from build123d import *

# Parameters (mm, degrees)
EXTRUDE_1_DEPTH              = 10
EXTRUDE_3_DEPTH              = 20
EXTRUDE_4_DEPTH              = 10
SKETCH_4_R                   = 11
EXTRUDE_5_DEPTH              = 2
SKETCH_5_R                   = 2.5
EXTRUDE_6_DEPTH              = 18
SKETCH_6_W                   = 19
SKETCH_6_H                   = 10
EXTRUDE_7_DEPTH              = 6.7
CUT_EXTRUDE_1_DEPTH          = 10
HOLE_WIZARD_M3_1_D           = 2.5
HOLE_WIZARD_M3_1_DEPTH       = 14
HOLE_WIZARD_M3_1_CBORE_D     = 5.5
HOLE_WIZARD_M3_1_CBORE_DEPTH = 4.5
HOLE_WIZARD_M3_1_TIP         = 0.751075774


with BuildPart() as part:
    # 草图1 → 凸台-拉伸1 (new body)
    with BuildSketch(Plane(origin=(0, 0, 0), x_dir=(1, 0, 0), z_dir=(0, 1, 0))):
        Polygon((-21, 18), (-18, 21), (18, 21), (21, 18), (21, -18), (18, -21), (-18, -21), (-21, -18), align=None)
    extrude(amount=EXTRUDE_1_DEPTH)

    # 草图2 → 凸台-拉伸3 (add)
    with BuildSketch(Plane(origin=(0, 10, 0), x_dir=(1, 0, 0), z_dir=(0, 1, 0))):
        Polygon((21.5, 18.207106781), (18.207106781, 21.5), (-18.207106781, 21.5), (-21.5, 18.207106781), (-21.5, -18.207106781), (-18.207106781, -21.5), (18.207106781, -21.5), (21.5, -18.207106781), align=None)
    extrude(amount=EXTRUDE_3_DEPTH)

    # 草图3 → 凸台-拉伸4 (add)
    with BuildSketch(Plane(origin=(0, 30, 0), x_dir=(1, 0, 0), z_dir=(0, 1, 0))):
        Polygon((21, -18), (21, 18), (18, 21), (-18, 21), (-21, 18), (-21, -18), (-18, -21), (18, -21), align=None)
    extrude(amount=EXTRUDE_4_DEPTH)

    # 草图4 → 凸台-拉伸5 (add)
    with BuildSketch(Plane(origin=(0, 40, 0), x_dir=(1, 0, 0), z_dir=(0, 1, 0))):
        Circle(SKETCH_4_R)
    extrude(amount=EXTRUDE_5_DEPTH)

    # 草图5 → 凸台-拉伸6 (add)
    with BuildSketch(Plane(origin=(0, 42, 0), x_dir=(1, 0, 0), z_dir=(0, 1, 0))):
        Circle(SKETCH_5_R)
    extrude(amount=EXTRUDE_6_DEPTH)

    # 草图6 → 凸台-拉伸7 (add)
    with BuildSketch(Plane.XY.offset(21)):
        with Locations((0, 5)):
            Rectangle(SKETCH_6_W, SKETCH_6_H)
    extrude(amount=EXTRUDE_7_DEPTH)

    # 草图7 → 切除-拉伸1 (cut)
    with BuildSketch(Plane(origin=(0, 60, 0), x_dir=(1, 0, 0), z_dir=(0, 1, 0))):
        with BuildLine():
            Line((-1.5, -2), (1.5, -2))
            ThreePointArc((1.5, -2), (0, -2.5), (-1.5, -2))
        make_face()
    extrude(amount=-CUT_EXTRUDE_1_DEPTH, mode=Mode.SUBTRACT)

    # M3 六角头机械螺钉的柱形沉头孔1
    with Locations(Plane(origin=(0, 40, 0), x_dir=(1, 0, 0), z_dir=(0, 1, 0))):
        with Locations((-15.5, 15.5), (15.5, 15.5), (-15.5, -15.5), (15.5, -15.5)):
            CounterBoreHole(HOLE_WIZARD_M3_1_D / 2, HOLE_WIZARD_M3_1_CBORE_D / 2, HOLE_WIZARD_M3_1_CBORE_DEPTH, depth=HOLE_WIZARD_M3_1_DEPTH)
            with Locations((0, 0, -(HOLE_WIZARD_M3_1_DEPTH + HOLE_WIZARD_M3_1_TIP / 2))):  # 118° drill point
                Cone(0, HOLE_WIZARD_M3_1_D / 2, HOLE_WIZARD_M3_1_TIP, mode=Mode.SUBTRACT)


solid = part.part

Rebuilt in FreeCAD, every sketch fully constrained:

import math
import FreeCAD as App
import Part
import Sketcher
from FreeCAD import Vector

doc = App.newDocument("Part")
params = doc.addObject("Spreadsheet::Sheet", "Params")
for row, (alias, value) in enumerate([
    ("sketch1_width", "36 mm"),
    ("pad1_length", "10 mm"),
    ("pad2_length", "20 mm"),
    ("sketch3_width", "36 mm"),
    ("pad3_length", "10 mm"),
    ("sketch4_diameter", "22 mm"),
    ("pad4_length", "2 mm"),
    ("sketch5_diameter", "5 mm"),
    ("pad5_length", "18 mm"),
    ("sketch6_width", "19 mm"),
    ("sketch6_height", "10 mm"),
    ("pad6_length", "6.7 mm"),
    ("sketch7_radius", "2.5 mm"),
    ("sketch7_width", "3 mm"),
    ("pocket1_length", "10 mm"),
    ("sketch8_diameter", "2.5 mm"),
    ("hole_diameter", "2.5 mm"),
    ("hole_depth", "14 mm"),
    ("hole_cbore_diameter", "5.5 mm"),
    ("hole_cbore_depth", "4.5 mm"),
], start=1):
    params.set(f"A{row}", alias)
    params.set(f"B{row}", "=" + value)
    params.setAlias(f"B{row}", alias)

body = doc.addObject("PartDesign::Body", "Body")

sketch1 = doc.addObject("Sketcher::SketchObject", "Sketch")
body.addObject(sketch1)
sketch1.AttachmentSupport = (doc.XZ_Plane, [""])
sketch1.MapMode = "FlatFace"
sketch1.addGeometry(Part.LineSegment(Vector(-18, -21, 0), Vector(-21, -18, 0)), False)
sketch1.addGeometry(Part.LineSegment(Vector(-21, -18, 0), Vector(-21, 18, 0)), False)
sketch1.addGeometry(Part.LineSegment(Vector(-21, 18, 0), Vector(-18, 21, 0)), False)
sketch1.addGeometry(Part.LineSegment(Vector(-18, 21, 0), Vector(18, 21, 0)), False)
sketch1.addGeometry(Part.LineSegment(Vector(18, 21, 0), Vector(21, 18, 0)), False)
sketch1.addGeometry(Part.LineSegment(Vector(21, 18, 0), Vector(21, -18, 0)), False)
sketch1.addGeometry(Part.LineSegment(Vector(21, -18, 0), Vector(18, -21, 0)), False)
sketch1.addGeometry(Part.LineSegment(Vector(18, -21, 0), Vector(-18, -21, 0)), False)
sketch1.addConstraint(Sketcher.Constraint("Coincident", 0, 2, 1, 1))
sketch1.addConstraint(Sketcher.Constraint("Coincident", 1, 2, 2, 1))
sketch1.addConstraint(Sketcher.Constraint("Coincident", 2, 2, 3, 1))
sketch1.addConstraint(Sketcher.Constraint("Coincident", 3, 2, 4, 1))
sketch1.addConstraint(Sketcher.Constraint("Coincident", 4, 2, 5, 1))
sketch1.addConstraint(Sketcher.Constraint("Coincident", 5, 2, 6, 1))
sketch1.addConstraint(Sketcher.Constraint("Coincident", 6, 2, 7, 1))
sketch1.addConstraint(Sketcher.Constraint("Coincident", 7, 2, 0, 1))
sketch1.addConstraint(Sketcher.Constraint("Vertical", 1))
sketch1.addConstraint(Sketcher.Constraint("Horizontal", 3))
sketch1.addConstraint(Sketcher.Constraint("Vertical", 5))
sketch1.addConstraint(Sketcher.Constraint("Horizontal", 7))
sketch1.addConstraint(Sketcher.Constraint("Symmetric", 0, 2, 4, 2, -1, 1))
sketch1.addConstraint(Sketcher.Constraint("Symmetric", 2, 2, 6, 2, -1, 1))
sketch1.addConstraint(Sketcher.Constraint("Perpendicular", 0, 2))
sketch1.addConstraint(Sketcher.Constraint("Perpendicular", 2, 4))
sketch1.addConstraint(Sketcher.Constraint("Perpendicular", 4, 6))
sketch1.addConstraint(Sketcher.Constraint("Horizontal", 1, 2, 4, 2))
sketch1.addConstraint(Sketcher.Constraint("Vertical", 3, 2, 6, 2))
sketch1.addConstraint(Sketcher.Constraint("Equal", 7, 1))
sketch1.addConstraint(Sketcher.Constraint("DistanceX", 3, 1, 3, 2, 36.0))
sketch1.addConstraint(Sketcher.Constraint("DistanceX", 0, 2, -1, 1, 21.0))
sketch1.setExpression("Constraints[20]", "Params.sketch1_width")
pad1 = doc.addObject("PartDesign::Pad", "Pad")
body.addObject(pad1)
pad1.Profile = sketch1
pad1.setExpression("Length", "Params.pad1_length")
pad1.Reversed = True

sketch2 = doc.addObject("Sketcher::SketchObject", "Sketch001")
body.addObject(sketch2)
sketch2.AttachmentSupport = (doc.XZ_Plane, [""])
sketch2.MapMode = "FlatFace"
sketch2.AttachmentOffset = App.Placement(Vector(0, 0, -10), App.Rotation())
sketch2.addGeometry(Part.LineSegment(Vector(21.5, -18.2, 0), Vector(18.2, -21.5, 0)), False)
sketch2.addGeometry(Part.LineSegment(Vector(18.2, -21.5, 0), Vector(-18.2, -21.5, 0)), False)
sketch2.addGeometry(Part.LineSegment(Vector(-18.2, -21.5, 0), Vector(-21.5, -18.2, 0)), False)
sketch2.addGeometry(Part.LineSegment(Vector(-21.5, -18.2, 0), Vector(-21.5, 18.2, 0)), False)
sketch2.addGeometry(Part.LineSegment(Vector(-21.5, 18.2, 0), Vector(-18.2, 21.5, 0)), False)
sketch2.addGeometry(Part.LineSegment(Vector(-18.2, 21.5, 0), Vector(18.2, 21.5, 0)), False)
sketch2.addGeometry(Part.LineSegment(Vector(18.2, 21.5, 0), Vector(21.5, 18.2, 0)), False)
sketch2.addGeometry(Part.LineSegment(Vector(21.5, 18.2, 0), Vector(21.5, -18.2, 0)), False)
sketch2.addConstraint(Sketcher.Constraint("Coincident", 0, 2, 1, 1))
sketch2.addConstraint(Sketcher.Constraint("Coincident", 1, 2, 2, 1))
sketch2.addConstraint(Sketcher.Constraint("Coincident", 2, 2, 3, 1))
sketch2.addConstraint(Sketcher.Constraint("Coincident", 3, 2, 4, 1))
sketch2.addConstraint(Sketcher.Constraint("Coincident", 4, 2, 5, 1))
sketch2.addConstraint(Sketcher.Constraint("Coincident", 5, 2, 6, 1))
sketch2.addConstraint(Sketcher.Constraint("Coincident", 6, 2, 7, 1))
sketch2.addConstraint(Sketcher.Constraint("Coincident", 7, 2, 0, 1))
sketch2.addConstraint(Sketcher.Constraint("Horizontal", 1))
sketch2.addConstraint(Sketcher.Constraint("Vertical", 3))
sketch2.addConstraint(Sketcher.Constraint("Horizontal", 5))
sketch2.addConstraint(Sketcher.Constraint("Vertical", 7))
sketch2.addConstraint(Sketcher.Constraint("Symmetric", 0, 2, 4, 2, -1, 1))
sketch2.addConstraint(Sketcher.Constraint("Symmetric", 2, 2, 6, 2, -1, 1))
sketch2.addConstraint(Sketcher.Constraint("Perpendicular", 0, 2))
sketch2.addConstraint(Sketcher.Constraint("Perpendicular", 2, 4))
sketch2.addConstraint(Sketcher.Constraint("Perpendicular", 4, 6))
sketch2.addConstraint(Sketcher.Constraint("Horizontal", 3, 2, 6, 2))
sketch2.addConstraint(Sketcher.Constraint("Vertical", 1, 2, 4, 2))
sketch2.addConstraint(Sketcher.Constraint("Equal", 5, 3))
sketch2.addConstraint(Sketcher.Constraint("DistanceY", 1, 2, 4, 2, 43.0))
sketch2.addConstraint(Sketcher.Constraint("DistanceX", 1, 2, 1, 1, 36.414214))
pad2 = doc.addObject("PartDesign::Pad", "Pad001")
body.addObject(pad2)
pad2.Profile = sketch2
pad2.setExpression("Length", "Params.pad2_length")
pad2.Reversed = True

sketch3 = doc.addObject("Sketcher::SketchObject", "Sketch002")
body.addObject(sketch3)
sketch3.AttachmentSupport = (doc.XZ_Plane, [""])
sketch3.MapMode = "FlatFace"
sketch3.AttachmentOffset = App.Placement(Vector(0, 0, -30), App.Rotation())
sketch3.addGeometry(Part.LineSegment(Vector(21, 18, 0), Vector(21, -18, 0)), False)
sketch3.addGeometry(Part.LineSegment(Vector(21, -18, 0), Vector(18, -21, 0)), False)
sketch3.addGeometry(Part.LineSegment(Vector(18, -21, 0), Vector(-18, -21, 0)), False)
sketch3.addGeometry(Part.LineSegment(Vector(-18, -21, 0), Vector(-21, -18, 0)), False)
sketch3.addGeometry(Part.LineSegment(Vector(-21, -18, 0), Vector(-21, 18, 0)), False)
sketch3.addGeometry(Part.LineSegment(Vector(-21, 18, 0), Vector(-18, 21, 0)), False)
sketch3.addGeometry(Part.LineSegment(Vector(-18, 21, 0), Vector(18, 21, 0)), False)
sketch3.addGeometry(Part.LineSegment(Vector(18, 21, 0), Vector(21, 18, 0)), False)
sketch3.addConstraint(Sketcher.Constraint("Coincident", 0, 2, 1, 1))
sketch3.addConstraint(Sketcher.Constraint("Coincident", 1, 2, 2, 1))
sketch3.addConstraint(Sketcher.Constraint("Coincident", 2, 2, 3, 1))
sketch3.addConstraint(Sketcher.Constraint("Coincident", 3, 2, 4, 1))
sketch3.addConstraint(Sketcher.Constraint("Coincident", 4, 2, 5, 1))
sketch3.addConstraint(Sketcher.Constraint("Coincident", 5, 2, 6, 1))
sketch3.addConstraint(Sketcher.Constraint("Coincident", 6, 2, 7, 1))
sketch3.addConstraint(Sketcher.Constraint("Coincident", 7, 2, 0, 1))
sketch3.addConstraint(Sketcher.Constraint("Vertical", 0))
sketch3.addConstraint(Sketcher.Constraint("Horizontal", 2))
sketch3.addConstraint(Sketcher.Constraint("Vertical", 4))
sketch3.addConstraint(Sketcher.Constraint("Horizontal", 6))
sketch3.addConstraint(Sketcher.Constraint("Symmetric", 0, 2, 4, 2, -1, 1))
sketch3.addConstraint(Sketcher.Constraint("Symmetric", 1, 2, 5, 2, -1, 1))
sketch3.addConstraint(Sketcher.Constraint("Perpendicular", 1, 3))
sketch3.addConstraint(Sketcher.Constraint("Perpendicular", 5, 7))
sketch3.addConstraint(Sketcher.Constraint("Horizontal", 0, 2, 3, 2))
sketch3.addConstraint(Sketcher.Constraint("Horizontal", 4, 2, 7, 2))
sketch3.addConstraint(Sketcher.Constraint("Vertical", 2, 2, 5, 2))
sketch3.addConstraint(Sketcher.Constraint("Equal", 6, 0))
sketch3.addConstraint(Sketcher.Constraint("DistanceX", 2, 2, 2, 1, 36.0))
sketch3.addConstraint(Sketcher.Constraint("DistanceX", -1, 1, 0, 2, 21.0))
sketch3.setExpression("Constraints[20]", "Params.sketch3_width")
pad3 = doc.addObject("PartDesign::Pad", "Pad002")
body.addObject(pad3)
pad3.Profile = sketch3
pad3.setExpression("Length", "Params.pad3_length")
pad3.Reversed = True

sketch4 = doc.addObject("Sketcher::SketchObject", "Sketch003")
body.addObject(sketch4)
sketch4.AttachmentSupport = (doc.XZ_Plane, [""])
sketch4.MapMode = "FlatFace"
sketch4.AttachmentOffset = App.Placement(Vector(0, 0, -40), App.Rotation())
sketch4.addGeometry(Part.Circle(Vector(0, 0, 0), Vector(0, 0, 1), 11), False)
sketch4.addConstraint(Sketcher.Constraint("Coincident", 0, 3, -1, 1))
sketch4.addConstraint(Sketcher.Constraint("Diameter", 0, 22.0))
sketch4.setExpression("Constraints[1]", "Params.sketch4_diameter")
pad4 = doc.addObject("PartDesign::Pad", "Pad003")
body.addObject(pad4)
pad4.Profile = sketch4
pad4.setExpression("Length", "Params.pad4_length")
pad4.Reversed = True

sketch5 = doc.addObject("Sketcher::SketchObject", "Sketch004")
body.addObject(sketch5)
sketch5.AttachmentSupport = (doc.XZ_Plane, [""])
sketch5.MapMode = "FlatFace"
sketch5.AttachmentOffset = App.Placement(Vector(0, 0, -42), App.Rotation())
sketch5.addGeometry(Part.Circle(Vector(0, 0, 0), Vector(0, 0, 1), 2.5), False)
sketch5.addConstraint(Sketcher.Constraint("Coincident", 0, 3, -1, 1))
sketch5.addConstraint(Sketcher.Constraint("Diameter", 0, 5.0))
sketch5.setExpression("Constraints[1]", "Params.sketch5_diameter")
pad5 = doc.addObject("PartDesign::Pad", "Pad004")
body.addObject(pad5)
pad5.Profile = sketch5
pad5.setExpression("Length", "Params.pad5_length")
pad5.Reversed = True

sketch6 = doc.addObject("Sketcher::SketchObject", "Sketch005")
body.addObject(sketch6)
sketch6.AttachmentSupport = (doc.XY_Plane, [""])
sketch6.MapMode = "FlatFace"
sketch6.AttachmentOffset = App.Placement(Vector(0, 0, 21), App.Rotation())
sketch6.addGeometry(Part.LineSegment(Vector(-10, 10, 0), Vector(-10, 0, 0)), False)
sketch6.addGeometry(Part.LineSegment(Vector(-10, 0, 0), Vector(10, 0, 0)), False)
sketch6.addGeometry(Part.LineSegment(Vector(10, 0, 0), Vector(10, 10, 0)), False)
sketch6.addGeometry(Part.LineSegment(Vector(10, 10, 0), Vector(-10, 10, 0)), False)
sketch6.addConstraint(Sketcher.Constraint("Coincident", 0, 2, 1, 1))
sketch6.addConstraint(Sketcher.Constraint("Coincident", 1, 2, 2, 1))
sketch6.addConstraint(Sketcher.Constraint("Coincident", 2, 2, 3, 1))
sketch6.addConstraint(Sketcher.Constraint("Coincident", 3, 2, 0, 1))
sketch6.addConstraint(Sketcher.Constraint("Vertical", 0))
sketch6.addConstraint(Sketcher.Constraint("Horizontal", 1))
sketch6.addConstraint(Sketcher.Constraint("Vertical", 2))
sketch6.addConstraint(Sketcher.Constraint("Horizontal", 3))
sketch6.addConstraint(Sketcher.Constraint("Symmetric", 0, 2, 1, 2, -1, 1))
sketch6.addConstraint(Sketcher.Constraint("DistanceX", 1, 1, 1, 2, 19.0))
sketch6.addConstraint(Sketcher.Constraint("DistanceY", 0, 2, 0, 1, 10.0))
sketch6.setExpression("Constraints[9]", "Params.sketch6_width")
sketch6.setExpression("Constraints[10]", "Params.sketch6_height")
pad6 = doc.addObject("PartDesign::Pad", "Pad005")
body.addObject(pad6)
pad6.Profile = sketch6
pad6.setExpression("Length", "Params.pad6_length")

sketch7 = doc.addObject("Sketcher::SketchObject", "Sketch006")
body.addObject(sketch7)
sketch7.AttachmentSupport = (doc.XZ_Plane, [""])
sketch7.MapMode = "FlatFace"
sketch7.AttachmentOffset = App.Placement(Vector(0, 0, -60), App.Rotation())
sketch7.addGeometry(Part.LineSegment(Vector(1.5, 2, 0), Vector(-1.5, 2, 0)), False)
sketch7.addGeometry(Part.ArcOfCircle(Part.Circle(Vector(0, 0, 0), Vector(0, 0, 1), 2.5), math.radians(53), math.radians(127)), False)
sketch7.addConstraint(Sketcher.Constraint("Coincident", 0, 1, 1, 1))
sketch7.addConstraint(Sketcher.Constraint("Coincident", 1, 2, 0, 2))
sketch7.addConstraint(Sketcher.Constraint("Horizontal", 0))
sketch7.addConstraint(Sketcher.Constraint("Coincident", 1, 3, -1, 1))
sketch7.addConstraint(Sketcher.Constraint("Radius", 1, 2.5))
sketch7.addConstraint(Sketcher.Constraint("DistanceX", 0, 2, 0, 1, 3.0))
sketch7.setExpression("Constraints[4]", "Params.sketch7_radius")
sketch7.setExpression("Constraints[5]", "Params.sketch7_width")
pocket1 = doc.addObject("PartDesign::Pocket", "Pocket")
body.addObject(pocket1)
pocket1.Profile = sketch7
pocket1.setExpression("Length", "Params.pocket1_length")
pocket1.Reversed = True

sketch8 = doc.addObject("Sketcher::SketchObject", "Sketch007")
body.addObject(sketch8)
sketch8.AttachmentSupport = (doc.XZ_Plane, [""])
sketch8.MapMode = "FlatFace"
sketch8.AttachmentOffset = App.Placement(Vector(0, 0, -40), App.Rotation())
sketch8.addGeometry(Part.Circle(Vector(-15.5, -15.5, 0), Vector(0, 0, 1), 1.2), False)
sketch8.addGeometry(Part.Circle(Vector(15.5, -15.5, 0), Vector(0, 0, 1), 1.2), False)
sketch8.addGeometry(Part.Circle(Vector(-15.5, 15.5, 0), Vector(0, 0, 1), 1.2), False)
sketch8.addGeometry(Part.Circle(Vector(15.5, 15.5, 0), Vector(0, 0, 1), 1.2), False)
sketch8.addConstraint(Sketcher.Constraint("Equal", 0, 1))
sketch8.addConstraint(Sketcher.Constraint("Equal", 1, 2))
sketch8.addConstraint(Sketcher.Constraint("Equal", 2, 3))
sketch8.addConstraint(Sketcher.Constraint("Symmetric", 1, 3, 2, 3, -1, 1))
sketch8.addConstraint(Sketcher.Constraint("Symmetric", 0, 3, 3, 3, -1, 1))
sketch8.addConstraint(Sketcher.Constraint("Symmetric", 0, 3, 1, 3, -2))
sketch8.addConstraint(Sketcher.Constraint("Diameter", 0, 2.5))
sketch8.addConstraint(Sketcher.Constraint("DistanceX", 0, 3, 1, 3, 31.0))
sketch8.addConstraint(Sketcher.Constraint("DistanceY", 0, 3, 2, 3, 31.0))
sketch8.setExpression("Constraints[6]", "Params.sketch8_diameter")
doc.recompute()
hole = doc.addObject("PartDesign::Hole", "Hole")
body.addObject(hole)
hole.Profile = sketch8
hole.ThreadType = "None"
hole.setExpression("Diameter", "Params.hole_diameter")
hole.DepthType = "Dimension"
hole.setExpression("Depth", "Params.hole_depth")
hole.DrillPoint = "Angled"
hole.DrillPointAngle = 118
hole.HoleCutType = "Counterbore"
hole.setExpression("HoleCutDiameter", "Params.hole_cbore_diameter")
hole.setExpression("HoleCutDepth", "Params.hole_cbore_depth")
hole.Reversed = True

doc.recompute()
